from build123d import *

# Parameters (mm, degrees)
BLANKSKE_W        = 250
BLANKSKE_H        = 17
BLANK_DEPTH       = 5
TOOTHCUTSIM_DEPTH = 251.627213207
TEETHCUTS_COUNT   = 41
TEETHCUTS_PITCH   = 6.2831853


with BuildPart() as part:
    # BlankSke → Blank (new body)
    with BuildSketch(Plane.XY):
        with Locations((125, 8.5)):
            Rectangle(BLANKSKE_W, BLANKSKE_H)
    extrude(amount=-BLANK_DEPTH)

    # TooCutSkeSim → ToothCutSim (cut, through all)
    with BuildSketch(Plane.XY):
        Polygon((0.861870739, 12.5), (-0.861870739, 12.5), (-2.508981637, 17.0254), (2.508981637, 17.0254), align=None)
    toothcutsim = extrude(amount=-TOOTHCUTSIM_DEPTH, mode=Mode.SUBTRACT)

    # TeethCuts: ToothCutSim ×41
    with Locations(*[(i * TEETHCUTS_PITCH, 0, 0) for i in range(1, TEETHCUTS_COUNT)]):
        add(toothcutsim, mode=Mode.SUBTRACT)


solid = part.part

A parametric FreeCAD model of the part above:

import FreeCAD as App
import Part
import Sketcher
from FreeCAD import Vector
Q = App.Units.Quantity


def add_polygon(sketch, points):
    """Adds a closed chain of lines whose ends are joined by coincident constraints."""
    first, n = sketch.GeometryCount, len(points)
    for a, b in zip(points, points[1:] + points[:1]):
        sketch.addGeometry(Part.LineSegment(App.Vector(*a, 0), App.Vector(*b, 0)), False)
    for i in range(n):
        sketch.addConstraint(Sketcher.Constraint("Coincident", first + i, 2, first + (i + 1) % n, 1))

doc = App.newDocument("Part")
params = doc.addObject("Spreadsheet::Sheet", "Params")
for row, (alias, value) in enumerate([
    ("sketch1_width", "250 mm"),
    ("sketch1_height", "17 mm"),
    ("pad1_length", "5 mm"),
    ("linearpattern_pitch", "6.283185 mm"),
], start=1):
    params.set(f"A{row}", alias)
    params.set(f"B{row}", "=" + value)
    params.setAlias(f"B{row}", alias)

body = doc.addObject("PartDesign::Body", "Body")

# Sketch on XY plane
sketch1 = body.newObject("Sketcher::SketchObject", "Sketch")
sketch1.AttachmentSupport = (doc.getObject("XY_Plane"), [""])
sketch1.MapMode = "FlatFace"
add_polygon(sketch1, [(0, 17), (0, 0), (250, 0), (250, 17)])  # lines 0-3
sketch1.addConstraint([
    Sketcher.Constraint("Vertical", 0),
    Sketcher.Constraint("Horizontal", 1),
    Sketcher.Constraint("Vertical", 2),
    Sketcher.Constraint("Horizontal", 3),
    Sketcher.Constraint("Coincident", 0, 2, -1, 1),
    Sketcher.Constraint("DistanceX", 1, 1, 1, 2, Q("250 mm")),
    Sketcher.Constraint("DistanceY", 0, 2, 0, 1, Q("17 mm")),
])
sketch1.setExpression("Constraints[9]", "Params.sketch1_width")
sketch1.setExpression("Constraints[10]", "Params.sketch1_height")
pad1 = body.newObject("PartDesign::Pad", "Pad")
pad1.Profile = sketch1
pad1.setExpression("Length", "Params.pad1_length")
pad1.Reversed = True

# Sketch on XY plane
sketch2 = body.newObject("Sketcher::SketchObject", "Sketch001")
sketch2.AttachmentSupport = (doc.getObject("XY_Plane"), [""])
sketch2.MapMode = "FlatFace"
add_polygon(sketch2, [(-0.861871, 12.5), (0.861871, 12.5), (2.508982, 17.0254), (-2.508982, 17.0254)])  # lines 0-3
sketch2.addConstraint([
    Sketcher.Constraint("Horizontal", 0),
    Sketcher.Constraint("Horizontal", 2),
    Sketcher.Constraint("Equal", 1, 3),
    Sketcher.Constraint("Angle", 1, Q("70 deg")),
    Sketcher.Constraint("DistanceY", -1, 1, 0, 2, Q("12.5 mm")),
    Sketcher.Constraint("DistanceX", 0, 1, 0, 2, Q("1.723741 mm")),
    Sketcher.Constraint("DistanceY", -1, 1, 1, 2, Q("17.0254 mm")),
    Sketcher.Constraint("DistanceX", -1, 1, 0, 2, Q("0.861871 mm")),
])
pocket1 = body.newObject("PartDesign::Pocket", "Pocket")
pocket1.Profile = sketch2
pocket1.Type = "ThroughAll"
doc.recompute()

linearpattern = body.newObject("PartDesign::LinearPattern", "LinearPattern")
linearpattern.Originals = [pocket1]
linearpattern.Direction = (doc.getObject("X_Axis"), [""])
linearpattern.Mode = "offset"
linearpattern.setExpression("Offset", "Params.linearpattern_pitch")
linearpattern.Occurrences = 41
body.Tip = linearpattern

doc.recompute()
